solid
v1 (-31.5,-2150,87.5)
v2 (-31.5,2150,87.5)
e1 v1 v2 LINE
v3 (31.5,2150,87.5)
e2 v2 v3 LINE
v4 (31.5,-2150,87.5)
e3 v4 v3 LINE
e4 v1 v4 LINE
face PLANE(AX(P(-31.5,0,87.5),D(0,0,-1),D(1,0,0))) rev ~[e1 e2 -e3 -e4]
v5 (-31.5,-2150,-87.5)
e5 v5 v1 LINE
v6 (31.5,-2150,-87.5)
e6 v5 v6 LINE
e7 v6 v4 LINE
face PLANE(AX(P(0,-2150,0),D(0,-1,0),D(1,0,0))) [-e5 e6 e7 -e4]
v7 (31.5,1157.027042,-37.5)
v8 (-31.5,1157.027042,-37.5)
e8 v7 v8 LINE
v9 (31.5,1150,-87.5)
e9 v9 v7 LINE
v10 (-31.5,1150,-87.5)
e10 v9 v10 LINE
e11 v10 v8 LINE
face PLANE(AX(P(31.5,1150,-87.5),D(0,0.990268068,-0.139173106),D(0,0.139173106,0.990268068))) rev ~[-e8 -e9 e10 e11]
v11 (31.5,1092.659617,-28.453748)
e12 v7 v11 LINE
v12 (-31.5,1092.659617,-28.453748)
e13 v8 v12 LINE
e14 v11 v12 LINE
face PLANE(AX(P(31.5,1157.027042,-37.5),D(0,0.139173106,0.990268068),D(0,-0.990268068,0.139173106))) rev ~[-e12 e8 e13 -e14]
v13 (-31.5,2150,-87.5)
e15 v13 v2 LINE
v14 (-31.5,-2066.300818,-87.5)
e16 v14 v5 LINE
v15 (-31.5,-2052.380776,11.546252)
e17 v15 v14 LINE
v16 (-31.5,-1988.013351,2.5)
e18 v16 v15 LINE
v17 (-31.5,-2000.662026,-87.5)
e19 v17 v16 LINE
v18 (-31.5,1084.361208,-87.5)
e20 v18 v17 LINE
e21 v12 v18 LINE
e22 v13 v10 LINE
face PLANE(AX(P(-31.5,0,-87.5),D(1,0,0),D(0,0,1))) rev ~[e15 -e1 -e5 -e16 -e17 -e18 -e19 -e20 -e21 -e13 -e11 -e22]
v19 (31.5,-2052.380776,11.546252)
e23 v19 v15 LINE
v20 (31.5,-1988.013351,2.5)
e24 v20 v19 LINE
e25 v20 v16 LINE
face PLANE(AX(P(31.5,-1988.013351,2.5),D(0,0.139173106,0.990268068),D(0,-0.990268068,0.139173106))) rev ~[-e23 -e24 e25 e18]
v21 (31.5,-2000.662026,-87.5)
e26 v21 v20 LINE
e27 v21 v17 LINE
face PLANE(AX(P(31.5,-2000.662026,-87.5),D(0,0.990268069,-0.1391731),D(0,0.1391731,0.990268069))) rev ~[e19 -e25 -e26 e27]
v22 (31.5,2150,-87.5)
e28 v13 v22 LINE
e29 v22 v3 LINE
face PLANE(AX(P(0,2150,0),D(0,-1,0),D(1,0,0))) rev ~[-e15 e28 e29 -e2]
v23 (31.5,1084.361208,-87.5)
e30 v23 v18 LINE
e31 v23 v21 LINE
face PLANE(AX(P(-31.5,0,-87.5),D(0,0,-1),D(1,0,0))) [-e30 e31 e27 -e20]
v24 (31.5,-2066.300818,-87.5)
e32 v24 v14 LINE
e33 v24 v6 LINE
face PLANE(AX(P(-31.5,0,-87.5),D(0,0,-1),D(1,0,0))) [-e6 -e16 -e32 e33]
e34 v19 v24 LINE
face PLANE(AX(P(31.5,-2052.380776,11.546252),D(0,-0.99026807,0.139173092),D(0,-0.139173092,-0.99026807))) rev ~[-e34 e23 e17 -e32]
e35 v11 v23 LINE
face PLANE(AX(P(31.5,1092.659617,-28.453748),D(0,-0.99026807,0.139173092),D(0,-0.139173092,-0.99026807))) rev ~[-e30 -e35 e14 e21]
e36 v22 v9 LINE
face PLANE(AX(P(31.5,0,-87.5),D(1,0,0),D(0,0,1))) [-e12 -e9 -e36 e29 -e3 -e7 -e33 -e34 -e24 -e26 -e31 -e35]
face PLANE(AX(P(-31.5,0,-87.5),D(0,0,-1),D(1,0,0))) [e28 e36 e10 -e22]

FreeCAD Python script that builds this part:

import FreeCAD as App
import Part
import Sketcher
Q = App.Units.Quantity


def add_polygon(sketch, points):
    """Adds a closed chain of lines whose ends are joined by coincident constraints."""
    first, n = sketch.GeometryCount, len(points)
    for a, b in zip(points, points[1:] + points[:1]):
        sketch.addGeometry(Part.LineSegment(App.Vector(*a, 0), App.Vector(*b, 0)), False)
    for i in range(n):
        sketch.addConstraint(Sketcher.Constraint("Coincident", first + i, 2, first + (i + 1) % n, 1))

doc = App.newDocument("Part")
body = doc.addObject("PartDesign::Body", "Body")

sketch1 = doc.addObject("Sketcher::SketchObject", "Sketch")
body.addObject(sketch1)
sketch1.AttachmentSupport = (doc.XZ_Plane, [""])
sketch1.MapMode = "FlatFace"
add_polygon(sketch1, [(-31.5, 87.5), (-31.5, -87.5), (31.5, -87.5), (31.5, 87.5)])
sketch1.addConstraint([
    Sketcher.Constraint("Vertical", 0),
    Sketcher.Constraint("Horizontal", 1),
    Sketcher.Constraint("Vertical", 2),
    Sketcher.Constraint("Horizontal", 3),
    Sketcher.Constraint("Symmetric", 0, 2, 2, 2, -1, 1),
    Sketcher.Constraint("DistanceX", 1, 1, 1, 2, 63.0),
    Sketcher.Constraint("DistanceY", 0, 2, 0, 1, 175.0),
])
pad1 = doc.addObject("PartDesign::Pad", "Pad")
body.addObject(pad1)
pad1.Profile = sketch1
pad1.Length = 4300
pad1.Midplane = True

sketch2 = doc.addObject("Sketcher::SketchObject", "Sketch001")
body.addObject(sketch2)
sketch2.AttachmentSupport = (doc.YZ_Plane, [""])
sketch2.MapMode = "FlatFace"
sketch2.AttachmentOffset = App.Placement(App.Vector(0, 0, 31.5), App.Rotation())
add_polygon(sketch2, [(1084.361208, -87.5), (1150, -87.5), (1157.027042, -37.5), (1092.659617, -28.453748)])
add_polygon(sketch2, [(-2066.300818, -87.5), (-2000.662026, -87.5), (-1988.013351, 2.5), (-2052.380776, 11.546252)])
sketch2.addConstraint([
    Sketcher.Constraint("Horizontal", 0),
    Sketcher.Constraint("Horizontal", 4),
    Sketcher.Constraint("Perpendicular", 1, 2),
    Sketcher.Constraint("Perpendicular", 2, 3),
    Sketcher.Constraint("Parallel", 3, 5),
    Sketcher.Constraint("Perpendicular", 5, 6),
    Sketcher.Constraint("Perpendicular", 6, 7),
    Sketcher.Constraint("Horizontal", 3, 2, 4, 2),
    Sketcher.Constraint("Equal", 0, 4),
    Sketcher.Constraint("Angle", 1, Q("82 deg")),
    Sketcher.Constraint("Distance", 2, 65.000001),
    Sketcher.Constraint("DistanceX", -1, 1, 0, 2, 1150.0),
    Sketcher.Constraint("DistanceY", 0, 2, 1, 2, 50.0),
    Sketcher.Constraint("DistanceY", 4, 2, 5, 2, 90.0),
    Sketcher.Constraint("DistanceY", 0, 2, -1, 1, 87.5),
    Sketcher.Constraint("DistanceX", 5, 2, -1, 1, 1988.013351),
])
pocket1 = doc.addObject("PartDesign::Pocket", "Pocket")
body.addObject(pocket1)
pocket1.Profile = sketch2
pocket1.Type = "ThroughAll"

doc.recompute()
